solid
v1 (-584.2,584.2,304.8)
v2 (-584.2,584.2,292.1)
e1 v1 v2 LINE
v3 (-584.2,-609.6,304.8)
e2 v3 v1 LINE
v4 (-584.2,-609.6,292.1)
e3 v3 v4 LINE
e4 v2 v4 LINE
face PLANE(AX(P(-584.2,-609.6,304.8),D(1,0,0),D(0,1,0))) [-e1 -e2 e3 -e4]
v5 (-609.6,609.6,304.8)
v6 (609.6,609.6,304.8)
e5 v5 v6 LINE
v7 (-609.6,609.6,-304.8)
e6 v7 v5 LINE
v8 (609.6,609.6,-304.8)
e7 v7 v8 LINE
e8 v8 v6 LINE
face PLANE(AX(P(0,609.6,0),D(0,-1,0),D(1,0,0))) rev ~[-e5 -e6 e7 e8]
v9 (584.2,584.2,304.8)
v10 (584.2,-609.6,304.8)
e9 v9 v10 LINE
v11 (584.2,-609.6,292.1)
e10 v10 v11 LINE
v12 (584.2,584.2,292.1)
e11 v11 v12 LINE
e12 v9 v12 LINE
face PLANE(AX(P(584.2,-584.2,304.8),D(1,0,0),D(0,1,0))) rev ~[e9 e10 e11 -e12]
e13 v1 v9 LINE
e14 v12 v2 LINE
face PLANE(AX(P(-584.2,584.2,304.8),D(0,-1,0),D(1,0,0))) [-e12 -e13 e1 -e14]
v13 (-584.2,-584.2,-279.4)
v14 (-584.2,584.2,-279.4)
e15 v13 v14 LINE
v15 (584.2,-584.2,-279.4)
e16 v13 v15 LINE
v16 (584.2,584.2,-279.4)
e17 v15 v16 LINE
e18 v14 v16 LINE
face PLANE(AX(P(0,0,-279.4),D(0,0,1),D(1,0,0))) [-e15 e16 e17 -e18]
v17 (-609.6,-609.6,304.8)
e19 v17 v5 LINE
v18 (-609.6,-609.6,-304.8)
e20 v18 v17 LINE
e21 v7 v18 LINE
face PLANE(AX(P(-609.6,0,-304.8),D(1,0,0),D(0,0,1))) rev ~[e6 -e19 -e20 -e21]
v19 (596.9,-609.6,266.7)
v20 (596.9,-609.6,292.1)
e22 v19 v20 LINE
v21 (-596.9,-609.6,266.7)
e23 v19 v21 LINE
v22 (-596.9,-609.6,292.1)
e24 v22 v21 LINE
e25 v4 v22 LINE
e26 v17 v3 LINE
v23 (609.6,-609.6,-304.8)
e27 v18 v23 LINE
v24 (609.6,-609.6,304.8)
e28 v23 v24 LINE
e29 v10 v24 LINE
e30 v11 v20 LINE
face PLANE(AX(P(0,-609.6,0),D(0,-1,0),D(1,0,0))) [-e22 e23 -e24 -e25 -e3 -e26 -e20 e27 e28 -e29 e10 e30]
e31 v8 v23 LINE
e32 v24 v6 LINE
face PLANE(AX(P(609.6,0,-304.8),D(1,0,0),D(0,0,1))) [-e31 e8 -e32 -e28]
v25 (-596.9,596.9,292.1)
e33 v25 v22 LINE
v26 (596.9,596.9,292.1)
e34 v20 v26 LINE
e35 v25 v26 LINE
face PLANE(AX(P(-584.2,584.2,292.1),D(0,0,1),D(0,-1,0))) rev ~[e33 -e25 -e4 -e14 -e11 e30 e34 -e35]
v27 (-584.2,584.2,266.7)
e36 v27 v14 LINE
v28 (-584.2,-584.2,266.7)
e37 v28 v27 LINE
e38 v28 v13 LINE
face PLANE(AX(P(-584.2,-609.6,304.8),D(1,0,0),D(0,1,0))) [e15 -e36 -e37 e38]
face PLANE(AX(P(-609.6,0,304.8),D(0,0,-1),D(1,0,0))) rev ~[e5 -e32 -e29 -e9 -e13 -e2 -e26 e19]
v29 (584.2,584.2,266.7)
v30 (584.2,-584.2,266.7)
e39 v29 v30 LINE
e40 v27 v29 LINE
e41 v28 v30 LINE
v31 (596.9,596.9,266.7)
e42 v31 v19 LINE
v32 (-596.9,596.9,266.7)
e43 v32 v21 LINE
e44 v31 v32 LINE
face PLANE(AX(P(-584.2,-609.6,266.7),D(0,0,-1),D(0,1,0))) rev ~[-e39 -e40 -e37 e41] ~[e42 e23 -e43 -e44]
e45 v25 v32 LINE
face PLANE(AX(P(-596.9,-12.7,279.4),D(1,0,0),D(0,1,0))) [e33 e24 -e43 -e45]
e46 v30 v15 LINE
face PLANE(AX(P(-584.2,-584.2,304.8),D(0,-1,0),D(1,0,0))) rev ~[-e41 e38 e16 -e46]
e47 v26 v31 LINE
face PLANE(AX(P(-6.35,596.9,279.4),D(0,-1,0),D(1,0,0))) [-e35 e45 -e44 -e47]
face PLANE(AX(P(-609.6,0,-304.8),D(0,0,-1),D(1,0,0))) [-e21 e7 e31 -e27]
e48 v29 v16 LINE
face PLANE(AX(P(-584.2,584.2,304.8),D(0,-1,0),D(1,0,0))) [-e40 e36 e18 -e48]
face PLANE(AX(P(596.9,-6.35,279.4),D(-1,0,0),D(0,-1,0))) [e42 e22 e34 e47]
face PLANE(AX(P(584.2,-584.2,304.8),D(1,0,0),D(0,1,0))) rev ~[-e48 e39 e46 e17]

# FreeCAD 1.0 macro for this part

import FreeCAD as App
import Part
import Sketcher

V = App.Vector
Q = App.Units.Quantity


def add_polygon(sketch, points):
    """Adds a closed chain of lines whose ends are joined by coincident constraints."""
    first, n = sketch.GeometryCount, len(points)
    for a, b in zip(points, points[1:] + points[:1]):
        sketch.addGeometry(Part.LineSegment(App.Vector(*a, 0), App.Vector(*b, 0)), False)
    for i in range(n):
        sketch.addConstraint(Sketcher.Constraint("Coincident", first + i, 2, first + (i + 1) % n, 1))

doc = App.newDocument("Part")
body = doc.addObject("PartDesign::Body", "Body")

sketch1 = body.newObject("Sketcher::SketchObject", "Sketch")
sketch1.AttachmentSupport = (doc.getObject("XZ_Plane"), [""])
sketch1.MapMode = "FlatFace"
add_polygon(sketch1, [(-610, 305), (-610, -305), (610, -305), (610, 305)])
sketch1.addConstraint(Sketcher.Constraint("Vertical", 0))
sketch1.addConstraint(Sketcher.Constraint("Horizontal", 1))
sketch1.addConstraint(Sketcher.Constraint("Vertical", 2))
sketch1.addConstraint(Sketcher.Constraint("Horizontal", 3))
sketch1.addConstraint(Sketcher.Constraint("Symmetric", 0, 2, 2, 2, -1, 1))
sketch1.addConstraint(Sketcher.Constraint("DistanceX", 1, 1, 1, 2, Q("48 in")))
sketch1.addConstraint(Sketcher.Constraint("DistanceY", 0, 2, 0, 1, Q("24 in")))
pad1 = body.newObject("PartDesign::Pad", "Pad")
pad1.Profile = sketch1
pad1.Length = Q("48 in")
pad1.Midplane = True

sketch2 = body.newObject("Sketcher::SketchObject", "Sketch001")
sketch2.AttachmentSupport = (doc.getObject("XY_Plane"), [""])
sketch2.MapMode = "FlatFace"
sketch2.AttachmentOffset = App.Placement(V(0, 0, 12 * 25.4), App.Rotation())
add_polygon(sketch2, [(-584, 584), (-584, -584), (584, -584), (584, 584)])
sketch2.addConstraint(Sketcher.Constraint("Vertical", 0))
sketch2.addConstraint(Sketcher.Constraint("Horizontal", 1))
sketch2.addConstraint(Sketcher.Constraint("Vertical", 2))
sketch2.addConstraint(Sketcher.Constraint("Horizontal", 3))
sketch2.addConstraint(Sketcher.Constraint("Symmetric", 0, 2, 2, 2, -1, 1))
sketch2.addConstraint(Sketcher.Constraint("Equal", 3, 0))
sketch2.addConstraint(Sketcher.Constraint("DistanceX", 1, 1, 1, 2, Q("46 in")))
pocket1 = body.newObject("PartDesign::Pocket", "Pocket")
pocket1.Profile = sketch2
pocket1.Length = Q("23 in")

sketch3 = body.newObject("Sketcher::SketchObject", "Sketch002")
sketch3.AttachmentSupport = (doc.getObject("XY_Plane"), [""])
sketch3.MapMode = "FlatFace"
sketch3.AttachmentOffset = App.Placement(V(0, 0, 12 * 25.4), App.Rotation())
add_polygon(sketch3, [(-584, -584), (-584, -610), (584, -610), (584, -584)])
sketch3.addConstraint(Sketcher.Constraint("Vertical", 0))
sketch3.addConstraint(Sketcher.Constraint("Horizontal", 1))
sketch3.addConstraint(Sketcher.Constraint("Vertical", 2))
sketch3.addConstraint(Sketcher.Constraint("Horizontal", 3))
sketch3.addConstraint(Sketcher.Constraint("DistanceX", 1, 1, 1, 2, Q("46 in")))
sketch3.addConstraint(Sketcher.Constraint("DistanceY", 0, 2, 0, 1, Q("1 in")))
sketch3.addConstraint(Sketcher.Constraint("DistanceX", 0, 2, -1, 1, Q("23 in")))
sketch3.addConstraint(Sketcher.Constraint("DistanceY", 0, 2, -1, 1, Q("24 in")))
pocket2 = body.newObject("PartDesign::Pocket", "Pocket001")
pocket2.Profile = sketch3
pocket2.Length = Q("1.5 in")

sketch4 = body.newObject("Sketcher::SketchObject", "Sketch003")
sketch4.AttachmentSupport = (doc.getObject("YZ_Plane"), [""])
sketch4.MapMode = "FlatFace"
sketch4.AttachmentOffset = App.Placement(V(0, 0, -23 * 25.4), App.Rotation())
add_polygon(sketch4, [(-610, 292), (-610, 267), (584, 267), (584, 292)])
sketch4.addConstraint(Sketcher.Constraint("Vertical", 0))
sketch4.addConstraint(Sketcher.Constraint("Horizontal", 1))
sketch4.addConstraint(Sketcher.Constraint("Vertical", 2))
sketch4.addConstraint(Sketcher.Constraint("Horizontal", 3))
sketch4.addConstraint(Sketcher.Constraint("DistanceX", 1, 1, 1, 2, Q("47 in")))
sketch4.addConstraint(Sketcher.Constraint("DistanceY", 0, 2, 0, 1, Q("1 in")))
sketch4.addConstraint(Sketcher.Constraint("DistanceX", 0, 2, -1, 1, Q("24 in")))
sketch4.addConstraint(Sketcher.Constraint("DistanceY", -1, 1, 0, 2, Q("10.5 in")))
pocket3 = body.newObject("PartDesign::Pocket", "Pocket002")
pocket3.Profile = sketch4
pocket3.Length = Q("0.5 in")

sketch5 = body.newObject("Sketcher::SketchObject", "Sketch004")
sketch5.AttachmentSupport = (doc.getObject("XZ_Plane"), [""])
sketch5.MapMode = "FlatFace"
sketch5.AttachmentOffset = App.Placement(V(0, 0, -23 * 25.4), App.Rotation())
add_polygon(sketch5, [(-597, 292), (-597, 267), (584, 267), (584, 292)])
sketch5.addConstraint(Sketcher.Constraint("Vertical", 0))
sketch5.addConstraint(Sketcher.Constraint("Horizontal", 1))
sketch5.addConstraint(Sketcher.Constraint("Vertical", 2))
sketch5.addConstraint(Sketcher.Constraint("Horizontal", 3))
sketch5.addConstraint(Sketcher.Constraint("DistanceY", 0, 2, 0, 1, Q("1 in")))
sketch5.addConstraint(Sketcher.Constraint("DistanceX", 1, 1, 1, 2, Q("46.5 in")))
sketch5.addConstraint(Sketcher.Constraint("DistanceX", -1, 1, 1, 2, Q("23 in")))
sketch5.addConstraint(Sketcher.Constraint("DistanceY", -1, 1, 0, 2, Q("10.5 in")))
pocket4 = body.newObject("PartDesign::Pocket", "Pocket003")
pocket4.Profile = sketch5
pocket4.Length = Q("0.5 in")

sketch6 = body.newObject("Sketcher::SketchObject", "Sketch005")
sketch6.AttachmentSupport = (doc.getObject("YZ_Plane"), [""])
sketch6.MapMode = "FlatFace"
sketch6.AttachmentOffset = App.Placement(V(0, 0, 23 * 25.4), App.Rotation())
add_polygon(sketch6, [(597, 292), (597, 267), (-610, 267), (-610, 292)])
sketch6.addConstraint(Sketcher.Constraint("Vertical", 0))
sketch6.addConstraint(Sketcher.Constraint("Horizontal", 1))
sketch6.addConstraint(Sketcher.Constraint("Vertical", 2))
sketch6.addConstraint(Sketcher.Constraint("Horizontal", 3))
sketch6.addConstraint(Sketcher.Constraint("DistanceY", 0, 2, 0, 1, Q("1 in")))
sketch6.addConstraint(Sketcher.Constraint("DistanceX", 1, 2, 1, 1, Q("47.5 in")))
sketch6.addConstraint(Sketcher.Constraint("DistanceX", 1, 2, -1, 1, Q("24 in")))
sketch6.addConstraint(Sketcher.Constraint("DistanceY", -1, 1, 0, 2, Q("10.5 in")))
pocket5 = body.newObject("PartDesign::Pocket", "Pocket004")
pocket5.Profile = sketch6
pocket5.Length = Q("0.5 in")
pocket5.Reversed = True

doc.recompute()
